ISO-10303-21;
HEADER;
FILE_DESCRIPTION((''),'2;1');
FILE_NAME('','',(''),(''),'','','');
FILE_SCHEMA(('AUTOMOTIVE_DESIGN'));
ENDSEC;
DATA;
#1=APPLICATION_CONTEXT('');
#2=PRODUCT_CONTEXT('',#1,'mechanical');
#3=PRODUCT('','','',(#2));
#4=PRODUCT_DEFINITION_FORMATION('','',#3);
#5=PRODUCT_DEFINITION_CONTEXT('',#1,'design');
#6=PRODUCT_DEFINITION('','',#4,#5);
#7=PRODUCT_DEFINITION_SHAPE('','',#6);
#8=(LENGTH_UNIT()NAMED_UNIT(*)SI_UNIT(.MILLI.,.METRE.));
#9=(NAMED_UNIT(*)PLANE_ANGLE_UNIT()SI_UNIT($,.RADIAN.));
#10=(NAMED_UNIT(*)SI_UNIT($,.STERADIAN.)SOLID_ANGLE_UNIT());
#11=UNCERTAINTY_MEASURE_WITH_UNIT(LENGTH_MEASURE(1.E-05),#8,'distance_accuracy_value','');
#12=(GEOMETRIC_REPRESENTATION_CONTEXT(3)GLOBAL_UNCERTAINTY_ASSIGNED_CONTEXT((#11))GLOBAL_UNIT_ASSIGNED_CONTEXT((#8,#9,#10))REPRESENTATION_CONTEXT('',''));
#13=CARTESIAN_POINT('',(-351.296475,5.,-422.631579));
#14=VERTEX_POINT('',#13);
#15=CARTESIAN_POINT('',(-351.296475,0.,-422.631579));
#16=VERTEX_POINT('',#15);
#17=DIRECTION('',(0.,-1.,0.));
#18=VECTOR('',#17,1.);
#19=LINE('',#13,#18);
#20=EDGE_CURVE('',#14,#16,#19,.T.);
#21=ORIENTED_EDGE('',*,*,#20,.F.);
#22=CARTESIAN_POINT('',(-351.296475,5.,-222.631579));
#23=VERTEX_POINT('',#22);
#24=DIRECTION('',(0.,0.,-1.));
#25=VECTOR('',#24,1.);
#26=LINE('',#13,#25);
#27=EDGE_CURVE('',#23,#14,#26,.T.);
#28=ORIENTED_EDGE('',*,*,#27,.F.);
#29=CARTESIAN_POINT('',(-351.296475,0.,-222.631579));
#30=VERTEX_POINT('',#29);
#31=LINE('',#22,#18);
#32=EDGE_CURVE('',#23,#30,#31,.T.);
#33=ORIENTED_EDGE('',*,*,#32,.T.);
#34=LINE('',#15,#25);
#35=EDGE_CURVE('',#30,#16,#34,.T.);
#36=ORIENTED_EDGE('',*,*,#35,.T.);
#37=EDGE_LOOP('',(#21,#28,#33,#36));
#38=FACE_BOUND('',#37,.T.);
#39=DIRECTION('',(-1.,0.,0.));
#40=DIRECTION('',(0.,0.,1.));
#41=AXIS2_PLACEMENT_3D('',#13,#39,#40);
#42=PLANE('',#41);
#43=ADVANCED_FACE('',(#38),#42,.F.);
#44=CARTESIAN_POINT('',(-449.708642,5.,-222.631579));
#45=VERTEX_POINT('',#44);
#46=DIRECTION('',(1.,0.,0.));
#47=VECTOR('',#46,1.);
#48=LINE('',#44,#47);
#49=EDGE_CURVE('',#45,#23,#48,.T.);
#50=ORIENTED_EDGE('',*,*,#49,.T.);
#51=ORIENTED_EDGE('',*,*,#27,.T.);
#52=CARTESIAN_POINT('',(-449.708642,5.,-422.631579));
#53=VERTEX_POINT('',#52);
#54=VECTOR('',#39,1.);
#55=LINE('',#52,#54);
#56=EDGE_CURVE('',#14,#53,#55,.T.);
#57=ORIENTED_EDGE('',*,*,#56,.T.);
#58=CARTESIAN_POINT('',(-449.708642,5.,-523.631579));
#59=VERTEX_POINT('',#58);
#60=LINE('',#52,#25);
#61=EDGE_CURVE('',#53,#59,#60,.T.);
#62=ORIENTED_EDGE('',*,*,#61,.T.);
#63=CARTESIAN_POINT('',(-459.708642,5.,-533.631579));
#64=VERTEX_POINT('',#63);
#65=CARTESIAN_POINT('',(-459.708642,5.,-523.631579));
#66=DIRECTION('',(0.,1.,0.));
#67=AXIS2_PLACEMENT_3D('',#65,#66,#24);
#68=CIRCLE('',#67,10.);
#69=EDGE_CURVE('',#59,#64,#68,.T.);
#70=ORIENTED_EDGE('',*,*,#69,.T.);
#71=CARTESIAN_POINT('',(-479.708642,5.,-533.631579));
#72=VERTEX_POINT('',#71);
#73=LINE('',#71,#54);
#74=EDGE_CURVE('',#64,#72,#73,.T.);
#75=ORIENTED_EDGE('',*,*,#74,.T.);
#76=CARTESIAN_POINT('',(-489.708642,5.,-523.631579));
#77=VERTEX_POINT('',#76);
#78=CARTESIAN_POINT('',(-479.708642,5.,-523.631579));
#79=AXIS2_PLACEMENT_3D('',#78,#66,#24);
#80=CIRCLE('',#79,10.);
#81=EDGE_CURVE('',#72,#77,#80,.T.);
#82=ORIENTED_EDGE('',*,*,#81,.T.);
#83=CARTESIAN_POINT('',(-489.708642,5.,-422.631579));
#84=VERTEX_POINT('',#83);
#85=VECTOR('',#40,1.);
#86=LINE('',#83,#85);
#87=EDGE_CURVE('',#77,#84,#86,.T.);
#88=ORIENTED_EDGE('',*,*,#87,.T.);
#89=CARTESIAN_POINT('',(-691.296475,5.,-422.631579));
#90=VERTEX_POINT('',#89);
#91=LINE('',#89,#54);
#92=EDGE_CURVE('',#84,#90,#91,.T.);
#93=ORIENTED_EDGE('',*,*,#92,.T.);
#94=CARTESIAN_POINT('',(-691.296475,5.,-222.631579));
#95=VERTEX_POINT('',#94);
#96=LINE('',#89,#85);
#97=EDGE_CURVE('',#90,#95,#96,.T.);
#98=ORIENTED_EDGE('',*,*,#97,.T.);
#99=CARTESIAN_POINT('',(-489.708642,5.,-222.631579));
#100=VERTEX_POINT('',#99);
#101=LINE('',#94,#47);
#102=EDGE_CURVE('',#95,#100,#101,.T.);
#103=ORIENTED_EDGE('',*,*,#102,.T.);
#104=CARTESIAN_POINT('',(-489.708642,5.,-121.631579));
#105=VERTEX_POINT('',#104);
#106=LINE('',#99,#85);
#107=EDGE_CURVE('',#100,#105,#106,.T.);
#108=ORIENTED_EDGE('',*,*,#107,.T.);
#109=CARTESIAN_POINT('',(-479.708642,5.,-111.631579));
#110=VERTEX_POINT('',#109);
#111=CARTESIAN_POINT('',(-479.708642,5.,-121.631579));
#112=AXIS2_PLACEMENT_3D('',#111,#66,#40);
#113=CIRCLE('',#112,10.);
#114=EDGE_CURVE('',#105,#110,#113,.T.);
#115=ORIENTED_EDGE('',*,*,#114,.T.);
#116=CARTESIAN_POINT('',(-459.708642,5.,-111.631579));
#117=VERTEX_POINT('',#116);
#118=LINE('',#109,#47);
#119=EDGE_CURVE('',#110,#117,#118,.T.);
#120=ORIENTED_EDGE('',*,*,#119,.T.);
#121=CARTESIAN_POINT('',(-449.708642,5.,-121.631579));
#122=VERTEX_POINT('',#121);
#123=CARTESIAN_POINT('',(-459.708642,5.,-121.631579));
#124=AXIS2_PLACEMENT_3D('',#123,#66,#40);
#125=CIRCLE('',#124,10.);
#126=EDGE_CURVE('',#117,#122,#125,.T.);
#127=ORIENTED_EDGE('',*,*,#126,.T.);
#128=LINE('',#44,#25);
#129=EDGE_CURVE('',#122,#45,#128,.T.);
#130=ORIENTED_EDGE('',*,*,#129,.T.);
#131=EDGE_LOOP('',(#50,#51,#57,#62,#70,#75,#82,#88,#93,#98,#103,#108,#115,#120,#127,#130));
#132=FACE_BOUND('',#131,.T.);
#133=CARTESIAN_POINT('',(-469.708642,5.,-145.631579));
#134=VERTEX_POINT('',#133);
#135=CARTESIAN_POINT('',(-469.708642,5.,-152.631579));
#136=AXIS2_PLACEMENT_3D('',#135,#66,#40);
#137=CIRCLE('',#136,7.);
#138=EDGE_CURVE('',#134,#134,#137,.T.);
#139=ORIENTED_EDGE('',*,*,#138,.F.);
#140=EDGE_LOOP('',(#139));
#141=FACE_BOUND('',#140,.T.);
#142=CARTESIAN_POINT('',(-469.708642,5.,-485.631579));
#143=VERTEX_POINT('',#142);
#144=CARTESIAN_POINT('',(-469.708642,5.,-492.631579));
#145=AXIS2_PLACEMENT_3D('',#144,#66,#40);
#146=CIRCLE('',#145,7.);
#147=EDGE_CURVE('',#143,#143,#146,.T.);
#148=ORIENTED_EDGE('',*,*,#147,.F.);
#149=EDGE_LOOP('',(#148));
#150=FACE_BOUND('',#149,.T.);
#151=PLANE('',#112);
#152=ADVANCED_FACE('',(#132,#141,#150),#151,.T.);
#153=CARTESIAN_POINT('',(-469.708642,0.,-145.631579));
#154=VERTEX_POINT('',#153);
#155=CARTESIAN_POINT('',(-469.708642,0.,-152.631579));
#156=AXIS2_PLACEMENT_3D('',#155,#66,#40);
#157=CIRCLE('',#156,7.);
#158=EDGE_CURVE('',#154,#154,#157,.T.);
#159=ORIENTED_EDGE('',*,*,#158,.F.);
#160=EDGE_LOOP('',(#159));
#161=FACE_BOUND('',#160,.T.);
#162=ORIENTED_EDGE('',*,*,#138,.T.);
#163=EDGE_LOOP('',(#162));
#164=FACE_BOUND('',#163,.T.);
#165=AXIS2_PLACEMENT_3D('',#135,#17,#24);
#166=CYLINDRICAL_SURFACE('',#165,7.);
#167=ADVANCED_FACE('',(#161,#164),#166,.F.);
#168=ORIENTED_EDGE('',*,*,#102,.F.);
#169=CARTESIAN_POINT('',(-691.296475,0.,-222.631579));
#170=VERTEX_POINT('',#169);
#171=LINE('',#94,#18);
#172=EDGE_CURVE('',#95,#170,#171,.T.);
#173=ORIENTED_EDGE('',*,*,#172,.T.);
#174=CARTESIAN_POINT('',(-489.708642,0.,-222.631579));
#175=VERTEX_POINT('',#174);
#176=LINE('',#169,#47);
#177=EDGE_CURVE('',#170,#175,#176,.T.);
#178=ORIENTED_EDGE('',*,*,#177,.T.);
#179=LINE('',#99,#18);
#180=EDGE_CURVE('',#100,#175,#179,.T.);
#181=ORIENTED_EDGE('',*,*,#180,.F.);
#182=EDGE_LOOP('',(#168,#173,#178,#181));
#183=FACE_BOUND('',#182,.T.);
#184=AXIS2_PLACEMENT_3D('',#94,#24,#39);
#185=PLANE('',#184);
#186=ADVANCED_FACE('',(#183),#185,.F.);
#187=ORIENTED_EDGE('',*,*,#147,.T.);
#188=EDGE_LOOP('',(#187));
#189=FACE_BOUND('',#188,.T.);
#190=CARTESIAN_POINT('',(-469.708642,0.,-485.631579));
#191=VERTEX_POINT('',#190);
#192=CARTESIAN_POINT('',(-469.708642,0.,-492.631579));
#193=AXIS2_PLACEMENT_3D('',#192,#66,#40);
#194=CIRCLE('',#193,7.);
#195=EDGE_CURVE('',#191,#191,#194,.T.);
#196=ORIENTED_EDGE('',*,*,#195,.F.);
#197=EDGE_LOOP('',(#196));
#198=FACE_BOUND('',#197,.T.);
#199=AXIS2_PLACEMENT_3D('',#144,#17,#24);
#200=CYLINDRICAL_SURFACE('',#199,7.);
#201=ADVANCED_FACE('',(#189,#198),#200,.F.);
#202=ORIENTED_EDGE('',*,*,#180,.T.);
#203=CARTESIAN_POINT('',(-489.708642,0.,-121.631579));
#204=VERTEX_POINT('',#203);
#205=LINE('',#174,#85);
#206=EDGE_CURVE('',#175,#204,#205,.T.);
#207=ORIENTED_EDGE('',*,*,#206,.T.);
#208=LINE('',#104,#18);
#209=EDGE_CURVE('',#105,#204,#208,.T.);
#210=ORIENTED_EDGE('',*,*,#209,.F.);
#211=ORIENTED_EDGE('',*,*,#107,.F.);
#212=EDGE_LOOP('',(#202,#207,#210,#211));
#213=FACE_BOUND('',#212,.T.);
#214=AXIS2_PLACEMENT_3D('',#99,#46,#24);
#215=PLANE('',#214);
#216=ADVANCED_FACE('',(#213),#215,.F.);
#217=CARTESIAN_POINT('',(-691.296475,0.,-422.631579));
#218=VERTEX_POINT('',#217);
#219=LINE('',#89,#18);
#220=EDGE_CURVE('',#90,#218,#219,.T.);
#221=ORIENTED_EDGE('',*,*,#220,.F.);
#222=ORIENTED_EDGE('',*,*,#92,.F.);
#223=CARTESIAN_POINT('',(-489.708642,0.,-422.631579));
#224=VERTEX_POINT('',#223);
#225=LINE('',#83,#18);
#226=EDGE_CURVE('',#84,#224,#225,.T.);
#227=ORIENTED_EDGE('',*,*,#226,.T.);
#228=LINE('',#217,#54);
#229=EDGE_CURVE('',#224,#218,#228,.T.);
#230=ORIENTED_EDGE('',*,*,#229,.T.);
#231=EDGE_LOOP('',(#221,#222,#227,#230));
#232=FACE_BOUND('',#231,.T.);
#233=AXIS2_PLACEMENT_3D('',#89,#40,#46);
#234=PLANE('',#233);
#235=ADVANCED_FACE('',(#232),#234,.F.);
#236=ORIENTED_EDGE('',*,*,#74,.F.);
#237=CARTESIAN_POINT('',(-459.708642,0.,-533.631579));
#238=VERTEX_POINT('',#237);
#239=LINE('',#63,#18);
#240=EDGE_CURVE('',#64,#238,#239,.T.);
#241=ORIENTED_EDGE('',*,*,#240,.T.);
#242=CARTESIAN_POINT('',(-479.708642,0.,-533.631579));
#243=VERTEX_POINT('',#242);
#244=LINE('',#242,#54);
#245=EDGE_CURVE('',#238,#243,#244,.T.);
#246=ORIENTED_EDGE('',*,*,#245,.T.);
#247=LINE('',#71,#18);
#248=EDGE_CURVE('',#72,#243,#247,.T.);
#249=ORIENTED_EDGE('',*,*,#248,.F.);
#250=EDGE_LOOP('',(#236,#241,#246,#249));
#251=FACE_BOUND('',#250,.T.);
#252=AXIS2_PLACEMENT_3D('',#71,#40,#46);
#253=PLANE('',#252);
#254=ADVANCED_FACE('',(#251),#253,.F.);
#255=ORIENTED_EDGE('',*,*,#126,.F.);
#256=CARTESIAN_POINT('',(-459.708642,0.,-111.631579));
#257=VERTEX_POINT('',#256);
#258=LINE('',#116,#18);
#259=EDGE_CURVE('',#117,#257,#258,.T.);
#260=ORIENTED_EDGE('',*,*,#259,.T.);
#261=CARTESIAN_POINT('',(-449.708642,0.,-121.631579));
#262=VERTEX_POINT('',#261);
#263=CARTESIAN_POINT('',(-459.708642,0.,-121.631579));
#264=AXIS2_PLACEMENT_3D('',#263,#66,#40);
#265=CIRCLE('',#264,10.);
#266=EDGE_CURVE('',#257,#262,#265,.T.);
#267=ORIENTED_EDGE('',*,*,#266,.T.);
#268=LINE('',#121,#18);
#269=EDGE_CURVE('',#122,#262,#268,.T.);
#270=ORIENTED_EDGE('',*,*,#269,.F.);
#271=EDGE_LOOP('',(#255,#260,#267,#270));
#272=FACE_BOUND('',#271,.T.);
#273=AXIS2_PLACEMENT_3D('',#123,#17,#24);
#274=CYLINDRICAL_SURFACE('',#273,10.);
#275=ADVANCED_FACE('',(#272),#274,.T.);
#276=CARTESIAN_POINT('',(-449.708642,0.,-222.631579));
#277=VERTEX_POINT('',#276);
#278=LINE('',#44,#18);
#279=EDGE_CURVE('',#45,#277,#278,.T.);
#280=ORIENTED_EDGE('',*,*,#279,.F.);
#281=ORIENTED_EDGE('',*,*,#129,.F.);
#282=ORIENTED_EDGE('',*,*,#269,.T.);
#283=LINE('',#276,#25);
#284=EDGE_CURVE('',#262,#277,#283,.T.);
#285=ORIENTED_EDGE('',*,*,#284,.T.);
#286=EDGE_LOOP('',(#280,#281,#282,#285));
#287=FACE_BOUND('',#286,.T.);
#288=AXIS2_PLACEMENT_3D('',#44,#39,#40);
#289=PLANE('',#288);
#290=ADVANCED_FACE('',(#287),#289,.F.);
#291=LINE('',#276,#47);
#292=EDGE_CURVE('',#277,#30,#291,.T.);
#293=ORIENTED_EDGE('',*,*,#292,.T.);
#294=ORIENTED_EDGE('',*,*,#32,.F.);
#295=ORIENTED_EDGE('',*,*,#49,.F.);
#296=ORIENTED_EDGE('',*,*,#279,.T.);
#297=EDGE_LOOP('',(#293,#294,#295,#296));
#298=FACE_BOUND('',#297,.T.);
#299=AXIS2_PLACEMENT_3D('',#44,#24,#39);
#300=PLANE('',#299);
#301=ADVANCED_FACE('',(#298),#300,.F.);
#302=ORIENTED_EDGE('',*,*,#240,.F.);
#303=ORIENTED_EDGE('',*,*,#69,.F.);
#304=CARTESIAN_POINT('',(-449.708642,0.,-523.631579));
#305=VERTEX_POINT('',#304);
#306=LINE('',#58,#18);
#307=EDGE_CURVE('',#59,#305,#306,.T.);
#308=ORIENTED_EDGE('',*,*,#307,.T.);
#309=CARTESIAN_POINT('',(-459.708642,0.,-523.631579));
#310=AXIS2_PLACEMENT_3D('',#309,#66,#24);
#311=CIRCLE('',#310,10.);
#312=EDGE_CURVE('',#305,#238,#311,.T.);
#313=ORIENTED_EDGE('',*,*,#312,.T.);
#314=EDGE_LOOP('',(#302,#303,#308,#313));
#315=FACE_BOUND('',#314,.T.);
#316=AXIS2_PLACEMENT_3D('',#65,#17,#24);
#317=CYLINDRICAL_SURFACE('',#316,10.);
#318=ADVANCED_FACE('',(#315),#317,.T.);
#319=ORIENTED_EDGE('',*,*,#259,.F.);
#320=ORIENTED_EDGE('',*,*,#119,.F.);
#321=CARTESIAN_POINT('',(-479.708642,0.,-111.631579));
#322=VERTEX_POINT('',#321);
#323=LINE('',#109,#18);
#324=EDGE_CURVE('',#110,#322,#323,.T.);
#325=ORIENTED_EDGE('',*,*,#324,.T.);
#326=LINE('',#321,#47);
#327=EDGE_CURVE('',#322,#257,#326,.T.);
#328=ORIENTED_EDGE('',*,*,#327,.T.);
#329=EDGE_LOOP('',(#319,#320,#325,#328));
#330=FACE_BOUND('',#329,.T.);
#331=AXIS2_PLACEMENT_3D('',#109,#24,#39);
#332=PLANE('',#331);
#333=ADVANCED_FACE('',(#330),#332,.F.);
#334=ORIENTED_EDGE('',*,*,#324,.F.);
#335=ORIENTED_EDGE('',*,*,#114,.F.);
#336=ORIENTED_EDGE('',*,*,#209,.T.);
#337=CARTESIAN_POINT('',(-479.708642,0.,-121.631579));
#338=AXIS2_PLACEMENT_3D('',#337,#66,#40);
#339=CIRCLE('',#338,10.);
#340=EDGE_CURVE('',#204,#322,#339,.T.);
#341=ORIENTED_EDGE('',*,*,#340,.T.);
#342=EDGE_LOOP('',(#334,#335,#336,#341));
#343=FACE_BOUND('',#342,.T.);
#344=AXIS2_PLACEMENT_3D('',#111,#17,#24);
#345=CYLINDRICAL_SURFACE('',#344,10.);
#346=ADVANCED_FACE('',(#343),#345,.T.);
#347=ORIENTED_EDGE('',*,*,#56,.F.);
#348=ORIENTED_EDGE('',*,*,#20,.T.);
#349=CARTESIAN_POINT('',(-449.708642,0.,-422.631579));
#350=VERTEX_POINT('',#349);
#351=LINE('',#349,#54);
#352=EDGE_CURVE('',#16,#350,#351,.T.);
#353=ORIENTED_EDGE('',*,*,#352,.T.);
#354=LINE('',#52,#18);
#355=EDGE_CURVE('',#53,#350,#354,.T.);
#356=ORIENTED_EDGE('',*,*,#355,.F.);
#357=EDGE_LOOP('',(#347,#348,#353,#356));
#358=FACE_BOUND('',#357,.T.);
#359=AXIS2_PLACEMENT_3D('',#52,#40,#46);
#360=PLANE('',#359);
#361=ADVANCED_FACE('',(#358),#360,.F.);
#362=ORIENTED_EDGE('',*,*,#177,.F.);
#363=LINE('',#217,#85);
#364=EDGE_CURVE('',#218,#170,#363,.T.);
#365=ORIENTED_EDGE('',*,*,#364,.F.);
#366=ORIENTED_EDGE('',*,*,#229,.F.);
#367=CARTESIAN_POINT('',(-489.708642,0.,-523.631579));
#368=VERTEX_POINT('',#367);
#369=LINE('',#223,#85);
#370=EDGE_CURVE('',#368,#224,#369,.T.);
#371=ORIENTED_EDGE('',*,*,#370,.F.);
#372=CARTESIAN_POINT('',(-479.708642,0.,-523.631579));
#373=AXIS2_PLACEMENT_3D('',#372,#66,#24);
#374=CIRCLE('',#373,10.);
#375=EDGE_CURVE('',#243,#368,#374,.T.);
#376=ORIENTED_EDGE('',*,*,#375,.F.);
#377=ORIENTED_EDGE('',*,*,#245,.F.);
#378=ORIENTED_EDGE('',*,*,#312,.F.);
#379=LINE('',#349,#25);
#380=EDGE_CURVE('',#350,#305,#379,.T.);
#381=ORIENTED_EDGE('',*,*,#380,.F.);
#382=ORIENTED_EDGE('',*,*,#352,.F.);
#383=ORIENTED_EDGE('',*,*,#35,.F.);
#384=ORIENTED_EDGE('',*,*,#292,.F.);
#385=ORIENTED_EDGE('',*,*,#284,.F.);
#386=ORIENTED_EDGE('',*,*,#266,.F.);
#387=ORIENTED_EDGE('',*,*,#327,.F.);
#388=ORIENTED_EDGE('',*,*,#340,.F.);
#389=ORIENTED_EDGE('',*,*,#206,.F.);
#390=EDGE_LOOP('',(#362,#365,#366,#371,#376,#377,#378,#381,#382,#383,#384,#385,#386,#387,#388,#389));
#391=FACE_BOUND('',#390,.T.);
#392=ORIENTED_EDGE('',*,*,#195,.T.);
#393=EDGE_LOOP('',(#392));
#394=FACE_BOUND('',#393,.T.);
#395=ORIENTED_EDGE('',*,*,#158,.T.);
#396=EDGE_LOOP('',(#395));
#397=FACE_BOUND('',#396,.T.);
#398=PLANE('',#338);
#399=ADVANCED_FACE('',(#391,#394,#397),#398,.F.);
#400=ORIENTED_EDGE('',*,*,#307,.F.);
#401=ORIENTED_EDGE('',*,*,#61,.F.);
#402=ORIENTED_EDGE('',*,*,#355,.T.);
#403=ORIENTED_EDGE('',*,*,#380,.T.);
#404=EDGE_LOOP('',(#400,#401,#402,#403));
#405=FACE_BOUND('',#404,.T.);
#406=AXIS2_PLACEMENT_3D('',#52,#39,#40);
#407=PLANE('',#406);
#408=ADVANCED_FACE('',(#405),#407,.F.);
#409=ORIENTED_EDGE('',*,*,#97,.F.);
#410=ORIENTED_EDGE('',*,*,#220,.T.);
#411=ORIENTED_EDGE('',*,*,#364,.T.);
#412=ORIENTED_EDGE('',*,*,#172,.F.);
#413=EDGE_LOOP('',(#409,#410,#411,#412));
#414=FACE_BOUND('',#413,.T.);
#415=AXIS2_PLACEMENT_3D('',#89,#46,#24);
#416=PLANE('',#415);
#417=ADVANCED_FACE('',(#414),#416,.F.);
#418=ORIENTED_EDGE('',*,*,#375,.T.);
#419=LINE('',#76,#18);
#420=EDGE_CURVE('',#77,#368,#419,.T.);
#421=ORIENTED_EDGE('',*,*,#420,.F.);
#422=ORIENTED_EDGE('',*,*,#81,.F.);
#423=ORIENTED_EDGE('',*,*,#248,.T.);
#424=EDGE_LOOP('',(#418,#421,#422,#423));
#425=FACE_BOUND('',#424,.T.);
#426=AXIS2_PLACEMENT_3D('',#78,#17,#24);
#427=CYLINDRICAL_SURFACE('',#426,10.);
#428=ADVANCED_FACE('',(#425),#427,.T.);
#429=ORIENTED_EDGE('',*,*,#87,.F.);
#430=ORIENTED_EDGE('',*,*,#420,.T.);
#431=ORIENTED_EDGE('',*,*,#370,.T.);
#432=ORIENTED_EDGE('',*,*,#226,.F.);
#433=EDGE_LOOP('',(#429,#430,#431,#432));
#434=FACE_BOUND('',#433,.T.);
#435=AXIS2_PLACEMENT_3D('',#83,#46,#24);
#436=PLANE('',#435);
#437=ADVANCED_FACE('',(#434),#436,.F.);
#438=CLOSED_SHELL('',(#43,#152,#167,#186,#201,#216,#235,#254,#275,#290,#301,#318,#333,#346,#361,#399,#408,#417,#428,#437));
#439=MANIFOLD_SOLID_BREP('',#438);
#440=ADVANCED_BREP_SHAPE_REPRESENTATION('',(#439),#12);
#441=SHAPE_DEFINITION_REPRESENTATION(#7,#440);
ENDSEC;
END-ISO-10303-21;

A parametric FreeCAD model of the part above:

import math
import FreeCAD as App
import Part
import Sketcher
Q = App.Units.Quantity

doc = App.newDocument("Part")
body = doc.addObject("PartDesign::Body", "Body")

sketch1 = body.newObject("Sketcher::SketchObject", "Sketch")
sketch1.AttachmentSupport = (doc.getObject("XZ_Plane"), [""])
sketch1.MapMode = "FlatFace"
sketch1.addGeometry(Part.LineSegment(App.Vector(-351, -423, 0), App.Vector(-450, -423, 0)), False)
sketch1.addGeometry(Part.LineSegment(App.Vector(-450, -423, 0), App.Vector(-450, -524, 0)), False)
sketch1.addGeometry(Part.ArcOfCircle(Part.Circle(App.Vector(-460, -524, 0), App.Vector(0, 0, 1), 10), math.radians(-90), math.radians(0)), False)
sketch1.addGeometry(Part.LineSegment(App.Vector(-460, -534, 0), App.Vector(-480, -534, 0)), False)
sketch1.addGeometry(Part.ArcOfCircle(Part.Circle(App.Vector(-480, -524, 0), App.Vector(0, 0, 1), 10), math.radians(180), math.radians(270)), False)
sketch1.addGeometry(Part.LineSegment(App.Vector(-490, -524, 0), App.Vector(-490, -423, 0)), False)
sketch1.addGeometry(Part.LineSegment(App.Vector(-490, -423, 0), App.Vector(-691, -423, 0)), False)
sketch1.addGeometry(Part.LineSegment(App.Vector(-691, -423, 0), App.Vector(-691, -223, 0)), False)
sketch1.addGeometry(Part.LineSegment(App.Vector(-691, -223, 0), App.Vector(-490, -223, 0)), False)
sketch1.addGeometry(Part.LineSegment(App.Vector(-490, -223, 0), App.Vector(-490, -122, 0)), False)
sketch1.addGeometry(Part.ArcOfCircle(Part.Circle(App.Vector(-480, -122, 0), App.Vector(0, 0, 1), 10), math.radians(90), math.radians(180)), False)
sketch1.addGeometry(Part.LineSegment(App.Vector(-480, -112, 0), App.Vector(-460, -112, 0)), False)
sketch1.addGeometry(Part.ArcOfCircle(Part.Circle(App.Vector(-460, -122, 0), App.Vector(0, 0, 1), 10), math.radians(0), math.radians(90)), False)
sketch1.addGeometry(Part.LineSegment(App.Vector(-450, -122, 0), App.Vector(-450, -223, 0)), False)
sketch1.addGeometry(Part.LineSegment(App.Vector(-450, -223, 0), App.Vector(-351, -223, 0)), False)
sketch1.addGeometry(Part.LineSegment(App.Vector(-351, -223, 0), App.Vector(-351, -423, 0)), False)
sketch1.addGeometry(Part.Circle(App.Vector(-470, -153, 0), App.Vector(0, 0, 1), 7), False)
sketch1.addGeometry(Part.Circle(App.Vector(-470, -493, 0), App.Vector(0, 0, 1), 7), False)
sketch1.addConstraint(Sketcher.Constraint("Coincident", 0, 2, 1, 1))
sketch1.addConstraint(Sketcher.Constraint("Tangent", 1, 2, 2, 2))
sketch1.addConstraint(Sketcher.Constraint("Tangent", 2, 1, 3, 1))
sketch1.addConstraint(Sketcher.Constraint("Tangent", 3, 2, 4, 2))
sketch1.addConstraint(Sketcher.Constraint("Tangent", 4, 1, 5, 1))
sketch1.addConstraint(Sketcher.Constraint("Coincident", 5, 2, 6, 1))
sketch1.addConstraint(Sketcher.Constraint("Coincident", 6, 2, 7, 1))
sketch1.addConstraint(Sketcher.Constraint("Coincident", 7, 2, 8, 1))
sketch1.addConstraint(Sketcher.Constraint("Coincident", 8, 2, 9, 1))
sketch1.addConstraint(Sketcher.Constraint("Tangent", 9, 2, 10, 2))
sketch1.addConstraint(Sketcher.Constraint("Tangent", 10, 1, 11, 1))
sketch1.addConstraint(Sketcher.Constraint("Tangent", 11, 2, 12, 2))
sketch1.addConstraint(Sketcher.Constraint("Tangent", 12, 1, 13, 1))
sketch1.addConstraint(Sketcher.Constraint("Coincident", 13, 2, 14, 1))
sketch1.addConstraint(Sketcher.Constraint("Coincident", 14, 2, 15, 1))
sketch1.addConstraint(Sketcher.Constraint("Coincident", 15, 2, 0, 1))
sketch1.addConstraint(Sketcher.Constraint("Horizontal", 0))
sketch1.addConstraint(Sketcher.Constraint("Vertical", 1))
sketch1.addConstraint(Sketcher.Constraint("Horizontal", 3))
sketch1.addConstraint(Sketcher.Constraint("Vertical", 5))
sketch1.addConstraint(Sketcher.Constraint("Horizontal", 6))
sketch1.addConstraint(Sketcher.Constraint("Vertical", 7))
sketch1.addConstraint(Sketcher.Constraint("Horizontal", 8))
sketch1.addConstraint(Sketcher.Constraint("Vertical", 9))
sketch1.addConstraint(Sketcher.Constraint("Horizontal", 11))
sketch1.addConstraint(Sketcher.Constraint("Vertical", 13))
sketch1.addConstraint(Sketcher.Constraint("Horizontal", 14))
sketch1.addConstraint(Sketcher.Constraint("Vertical", 15))
sketch1.addConstraint(Sketcher.Constraint("Equal", 2, 4))
sketch1.addConstraint(Sketcher.Constraint("Equal", 4, 10))
sketch1.addConstraint(Sketcher.Constraint("Equal", 10, 12))
sketch1.addConstraint(Sketcher.Constraint("Equal", 16, 17))
sketch1.addConstraint(Sketcher.Constraint("Horizontal", 0, 2, 5, 2))
sketch1.addConstraint(Sketcher.Constraint("Horizontal", 8, 2, 13, 2))
sketch1.addConstraint(Sketcher.Constraint("Vertical", 4, 3, 10, 3))
sketch1.addConstraint(Sketcher.Constraint("Vertical", 2, 3, 12, 3))
sketch1.addConstraint(Sketcher.Constraint("Vertical", 16, 3, 17, 3))
sketch1.addConstraint(Sketcher.Constraint("Equal", 5, 9))
sketch1.addConstraint(Sketcher.Constraint("Diameter", 16, Q("14 mm")))
sketch1.addConstraint(Sketcher.Constraint("Radius", 2, Q("10 mm")))
sketch1.addConstraint(Sketcher.Constraint("DistanceX", 3, 2, 3, 1, Q("20 mm")))
sketch1.addConstraint(Sketcher.Constraint("DistanceY", 1, 2, 1, 1, Q("101 mm")))
sketch1.addConstraint(Sketcher.Constraint("DistanceY", 7, 1, 7, 2, Q("200 mm")))
sketch1.addConstraint(Sketcher.Constraint("DistanceX", 10, 3, 16, 3, Q("10 mm")))
sketch1.addConstraint(Sketcher.Constraint("DistanceY", 16, 3, 10, 3, Q("31 mm")))
sketch1.addConstraint(Sketcher.Constraint("DistanceY", 2, 3, 17, 3, Q("31 mm")))
sketch1.addConstraint(Sketcher.Constraint("DistanceX", 0, 2, 0, 1, Q("98.412167 mm")))
sketch1.addConstraint(Sketcher.Constraint("DistanceX", 6, 2, 6, 1, Q("201.587833 mm")))
sketch1.addConstraint(Sketcher.Constraint("DistanceY", 2, 3, -1, 1, Q("523.631579 mm")))
sketch1.addConstraint(Sketcher.Constraint("DistanceX", 2, 3, -1, 1, Q("459.708642 mm")))
pad1 = body.newObject("PartDesign::Pad", "Pad")
pad1.Profile = sketch1
pad1.Length = 5
pad1.Reversed = True

doc.recompute()
